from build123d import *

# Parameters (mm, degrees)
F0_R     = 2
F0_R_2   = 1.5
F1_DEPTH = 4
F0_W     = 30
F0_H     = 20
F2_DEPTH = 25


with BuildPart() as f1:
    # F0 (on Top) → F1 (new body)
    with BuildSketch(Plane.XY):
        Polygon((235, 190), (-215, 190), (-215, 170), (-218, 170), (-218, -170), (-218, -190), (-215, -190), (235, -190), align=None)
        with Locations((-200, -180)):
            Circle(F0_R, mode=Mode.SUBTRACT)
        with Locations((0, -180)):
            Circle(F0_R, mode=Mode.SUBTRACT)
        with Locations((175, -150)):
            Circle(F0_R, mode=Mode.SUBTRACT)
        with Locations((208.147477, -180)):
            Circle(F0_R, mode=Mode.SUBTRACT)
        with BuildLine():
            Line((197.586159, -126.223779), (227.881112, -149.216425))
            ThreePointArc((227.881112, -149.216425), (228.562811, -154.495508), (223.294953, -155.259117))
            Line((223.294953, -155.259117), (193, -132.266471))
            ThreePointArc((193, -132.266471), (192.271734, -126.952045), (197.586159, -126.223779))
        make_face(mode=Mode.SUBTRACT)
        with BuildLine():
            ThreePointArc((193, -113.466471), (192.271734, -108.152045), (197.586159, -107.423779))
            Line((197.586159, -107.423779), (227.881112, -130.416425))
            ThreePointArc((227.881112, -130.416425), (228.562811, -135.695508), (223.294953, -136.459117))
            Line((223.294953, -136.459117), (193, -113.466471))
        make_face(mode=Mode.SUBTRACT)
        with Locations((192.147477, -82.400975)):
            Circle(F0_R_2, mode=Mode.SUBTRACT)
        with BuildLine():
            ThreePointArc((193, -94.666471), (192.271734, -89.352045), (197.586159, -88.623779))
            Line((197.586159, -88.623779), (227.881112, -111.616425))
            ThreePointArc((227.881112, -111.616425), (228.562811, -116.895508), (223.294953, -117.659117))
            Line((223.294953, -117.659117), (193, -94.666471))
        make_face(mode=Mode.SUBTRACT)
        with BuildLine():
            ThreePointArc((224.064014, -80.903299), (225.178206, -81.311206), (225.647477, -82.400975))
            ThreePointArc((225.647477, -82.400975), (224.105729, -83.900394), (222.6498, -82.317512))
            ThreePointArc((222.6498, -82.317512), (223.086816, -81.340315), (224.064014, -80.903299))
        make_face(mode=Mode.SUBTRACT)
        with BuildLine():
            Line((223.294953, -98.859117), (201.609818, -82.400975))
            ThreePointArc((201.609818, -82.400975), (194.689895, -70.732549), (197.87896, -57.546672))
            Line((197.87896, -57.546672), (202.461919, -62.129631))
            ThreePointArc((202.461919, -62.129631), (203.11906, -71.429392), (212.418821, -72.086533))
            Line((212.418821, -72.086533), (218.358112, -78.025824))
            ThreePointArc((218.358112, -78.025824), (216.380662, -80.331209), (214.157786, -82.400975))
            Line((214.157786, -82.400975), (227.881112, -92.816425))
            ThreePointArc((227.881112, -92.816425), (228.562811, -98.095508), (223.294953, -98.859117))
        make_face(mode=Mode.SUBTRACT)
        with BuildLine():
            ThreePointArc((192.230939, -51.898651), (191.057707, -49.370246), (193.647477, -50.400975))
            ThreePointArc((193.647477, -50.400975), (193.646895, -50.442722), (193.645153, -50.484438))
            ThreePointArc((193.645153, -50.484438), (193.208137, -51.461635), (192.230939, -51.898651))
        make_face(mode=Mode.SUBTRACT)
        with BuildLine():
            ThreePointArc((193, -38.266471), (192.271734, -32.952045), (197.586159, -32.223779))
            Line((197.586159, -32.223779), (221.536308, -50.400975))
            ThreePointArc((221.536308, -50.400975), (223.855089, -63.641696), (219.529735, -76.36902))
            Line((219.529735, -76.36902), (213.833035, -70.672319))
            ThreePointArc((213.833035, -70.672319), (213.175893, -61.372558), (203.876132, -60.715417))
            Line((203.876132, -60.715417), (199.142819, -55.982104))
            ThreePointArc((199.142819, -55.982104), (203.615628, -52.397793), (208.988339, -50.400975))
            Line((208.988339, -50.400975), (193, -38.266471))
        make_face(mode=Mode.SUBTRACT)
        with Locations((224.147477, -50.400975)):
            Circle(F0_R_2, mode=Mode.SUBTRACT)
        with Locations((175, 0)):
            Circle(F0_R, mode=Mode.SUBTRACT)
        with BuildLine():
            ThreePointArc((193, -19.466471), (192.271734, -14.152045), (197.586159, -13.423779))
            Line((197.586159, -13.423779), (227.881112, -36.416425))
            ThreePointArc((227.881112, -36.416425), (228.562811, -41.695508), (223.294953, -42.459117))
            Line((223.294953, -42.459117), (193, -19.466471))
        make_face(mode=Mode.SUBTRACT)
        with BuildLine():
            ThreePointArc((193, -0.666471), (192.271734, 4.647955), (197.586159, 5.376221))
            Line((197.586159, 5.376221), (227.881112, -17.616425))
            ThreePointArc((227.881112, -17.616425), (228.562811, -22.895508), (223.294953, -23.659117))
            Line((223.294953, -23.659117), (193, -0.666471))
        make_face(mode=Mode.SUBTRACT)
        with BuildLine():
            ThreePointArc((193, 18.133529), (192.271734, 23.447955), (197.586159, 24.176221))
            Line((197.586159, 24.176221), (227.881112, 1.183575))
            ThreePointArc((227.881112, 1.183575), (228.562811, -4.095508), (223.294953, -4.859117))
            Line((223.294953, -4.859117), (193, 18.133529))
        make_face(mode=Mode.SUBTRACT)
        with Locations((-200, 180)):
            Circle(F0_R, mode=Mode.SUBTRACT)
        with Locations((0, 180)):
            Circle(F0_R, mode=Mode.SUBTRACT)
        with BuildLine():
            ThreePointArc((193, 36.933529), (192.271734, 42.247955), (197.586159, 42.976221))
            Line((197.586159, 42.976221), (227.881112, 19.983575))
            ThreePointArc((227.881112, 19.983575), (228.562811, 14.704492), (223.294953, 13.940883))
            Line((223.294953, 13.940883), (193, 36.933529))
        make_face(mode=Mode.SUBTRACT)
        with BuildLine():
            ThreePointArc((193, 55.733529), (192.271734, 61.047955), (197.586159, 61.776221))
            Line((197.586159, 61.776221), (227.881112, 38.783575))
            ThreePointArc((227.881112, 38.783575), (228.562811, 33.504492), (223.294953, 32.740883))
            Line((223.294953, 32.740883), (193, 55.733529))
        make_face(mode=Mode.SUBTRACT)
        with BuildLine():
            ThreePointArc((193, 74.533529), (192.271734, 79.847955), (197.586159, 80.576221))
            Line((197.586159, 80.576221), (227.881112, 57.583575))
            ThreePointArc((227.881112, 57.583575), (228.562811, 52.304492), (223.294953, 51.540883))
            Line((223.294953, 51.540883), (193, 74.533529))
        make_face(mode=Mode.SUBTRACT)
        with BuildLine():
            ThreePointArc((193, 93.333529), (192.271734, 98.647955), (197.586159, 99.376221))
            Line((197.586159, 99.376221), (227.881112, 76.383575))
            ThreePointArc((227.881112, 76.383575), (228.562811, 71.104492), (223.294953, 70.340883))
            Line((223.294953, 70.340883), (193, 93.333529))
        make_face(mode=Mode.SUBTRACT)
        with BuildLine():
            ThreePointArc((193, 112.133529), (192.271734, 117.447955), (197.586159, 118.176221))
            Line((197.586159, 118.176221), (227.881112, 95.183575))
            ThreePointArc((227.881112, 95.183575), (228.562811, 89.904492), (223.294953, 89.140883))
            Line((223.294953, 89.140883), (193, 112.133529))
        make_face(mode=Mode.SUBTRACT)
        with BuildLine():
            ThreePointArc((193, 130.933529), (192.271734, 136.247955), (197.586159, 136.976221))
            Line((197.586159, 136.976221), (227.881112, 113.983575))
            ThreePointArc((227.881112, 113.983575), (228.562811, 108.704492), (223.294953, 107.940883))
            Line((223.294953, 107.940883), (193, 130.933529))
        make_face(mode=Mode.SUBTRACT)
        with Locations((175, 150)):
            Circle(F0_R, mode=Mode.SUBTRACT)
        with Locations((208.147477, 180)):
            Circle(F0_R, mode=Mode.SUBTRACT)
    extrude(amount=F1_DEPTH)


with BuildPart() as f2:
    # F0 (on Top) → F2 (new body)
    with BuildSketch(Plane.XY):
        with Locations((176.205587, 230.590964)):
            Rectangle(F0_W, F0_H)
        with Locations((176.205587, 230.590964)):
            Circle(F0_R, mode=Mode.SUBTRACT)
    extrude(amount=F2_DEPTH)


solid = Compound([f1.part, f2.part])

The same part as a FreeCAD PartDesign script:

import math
import FreeCAD as App
import Part
import Sketcher
Q = App.Units.Quantity


def add_polygon(sketch, points):
    """Adds a closed chain of lines whose ends are joined by coincident constraints."""
    first, n = sketch.GeometryCount, len(points)
    for a, b in zip(points, points[1:] + points[:1]):
        sketch.addGeometry(Part.LineSegment(App.Vector(*a, 0), App.Vector(*b, 0)), False)
    for i in range(n):
        sketch.addConstraint(Sketcher.Constraint("Coincident", first + i, 2, first + (i + 1) % n, 1))

doc = App.newDocument("Part")
body = doc.addObject("PartDesign::Body", "Body")

# Sketch on XY plane
sketch1 = body.newObject("Sketcher::SketchObject", "Sketch")
sketch1.AttachmentSupport = (doc.getObject("XY_Plane"), [""])
sketch1.MapMode = "FlatFace"
add_polygon(sketch1, [(235, 190), (-215, 190), (-215, 170), (-218, 170), (-218, -190), (235, -190)])  # lines 0-5
sketch1.addGeometry(Part.Circle(App.Vector(-200, -180, 0), App.Vector(0, 0, 1), 2), False)  # 6
sketch1.addGeometry(Part.Circle(App.Vector(0, -180, 0), App.Vector(0, 0, 1), 2), False)  # 7
sketch1.addGeometry(Part.Circle(App.Vector(175, -150, 0), App.Vector(0, 0, 1), 2), False)  # 8
sketch1.addGeometry(Part.Circle(App.Vector(208.147477, -180, 0), App.Vector(0, 0, 1), 2), False)  # 9
sketch1.addGeometry(Part.ArcOfCircle(Part.Circle(App.Vector(195.29308, -129.245125, 0), App.Vector(0, 0, 1), 3.792986), math.radians(52.802973), math.radians(232.80297)), False)  # 10
sketch1.addGeometry(Part.LineSegment(App.Vector(197.586159, -126.223779, 0), App.Vector(227.881112, -149.216425, 0)), False)  # 11
sketch1.addGeometry(Part.ArcOfCircle(Part.Circle(App.Vector(225.541101, -152.202152, 0), App.Vector(0, 0, 1), 3.793444), math.radians(-126.307101), math.radians(51.913044)), False)  # 12
sketch1.addGeometry(Part.LineSegment(App.Vector(223.294953, -155.259117, 0), App.Vector(193, -132.266471, 0)), False)  # 13
sketch1.addGeometry(Part.LineSegment(App.Vector(223.294953, -136.459117, 0), App.Vector(193, -113.466471, 0)), False)  # 14
sketch1.addGeometry(Part.ArcOfCircle(Part.Circle(App.Vector(195.29308, -110.445125, 0), App.Vector(0, 0, 1), 3.792986), math.radians(52.802973), math.radians(232.80297)), False)  # 15
sketch1.addGeometry(Part.LineSegment(App.Vector(197.586159, -107.423779, 0), App.Vector(227.881112, -130.416425, 0)), False)  # 16
sketch1.addGeometry(Part.ArcOfCircle(Part.Circle(App.Vector(225.541101, -133.402152, 0), App.Vector(0, 0, 1), 3.793444), math.radians(-126.307101), math.radians(51.913044)), False)  # 17
sketch1.addGeometry(Part.LineSegment(App.Vector(223.294953, -117.659117, 0), App.Vector(193, -94.666471, 0)), False)  # 18
sketch1.addGeometry(Part.ArcOfCircle(Part.Circle(App.Vector(195.29308, -91.645125, 0), App.Vector(0, 0, 1), 3.792986), math.radians(52.802973), math.radians(232.80297)), False)  # 19
sketch1.addGeometry(Part.LineSegment(App.Vector(197.586159, -88.623779, 0), App.Vector(227.881112, -111.616425, 0)), False)  # 20
sketch1.addGeometry(Part.ArcOfCircle(Part.Circle(App.Vector(225.541101, -114.602152, 0), App.Vector(0, 0, 1), 3.793444), math.radians(-126.307101), math.radians(51.913044)), False)  # 21
sketch1.addGeometry(Part.Circle(App.Vector(192.147477, -82.400975, 0), App.Vector(0, 0, 1), 1.5), False)  # 22
sketch1.addGeometry(Part.ArcOfCircle(Part.Circle(App.Vector(224.147476, -82.400975, 0), App.Vector(0, 0, 1), 1.5), math.radians(93.189664), math.radians(176.810295)), False)  # 23
sketch1.addGeometry(Part.ArcOfCircle(Part.Circle(App.Vector(224.147476, -82.400976, 0), App.Vector(0, 0, 1), 1.500001), math.radians(0.000033), math.radians(93.189673)), False)  # 24
sketch1.addGeometry(Part.ArcOfCircle(Part.Circle(App.Vector(224.147477, -82.400975, 0), App.Vector(0, 0, 1), 1.5), math.radians(176.810315), math.radians(359.999987)), False)  # 25
sketch1.addGeometry(Part.ArcOfCircle(Part.Circle(App.Vector(225.541101, -95.802152, 0), App.Vector(0, 0, 1), 3.793444), math.radians(-126.307101), math.radians(51.913044)), False)  # 26
sketch1.addGeometry(Part.LineSegment(App.Vector(223.294953, -98.859117, 0), App.Vector(201.609818, -82.400975, 0)), False)  # 27
sketch1.addGeometry(Part.ArcOfCircle(Part.Circle(App.Vector(212.494052, -68.059983, 0), App.Vector(0, 0, 1), 18.003627), math.radians(144.270791), math.radians(232.802971)), False)  # 28
sketch1.addGeometry(Part.LineSegment(App.Vector(197.87896, -57.546672, 0), App.Vector(202.461919, -62.129631, 0)), False)  # 29
sketch1.addGeometry(Part.ArcOfCircle(Part.Circle(App.Vector(208.147477, -66.400975, 0), App.Vector(0, 0, 1), 7.111255), math.radians(143.083848), math.radians(306.916152)), False)  # 30
sketch1.addGeometry(Part.LineSegment(App.Vector(212.418821, -72.086533, 0), App.Vector(218.358112, -78.025824, 0)), False)  # 31
sketch1.addGeometry(Part.ArcOfCircle(Part.Circle(App.Vector(196.820607, -61.552746, 0), App.Vector(0, 0, 1), 27.115059), math.radians(-50.253427), math.radians(-37.410762)), False)  # 32
sketch1.addGeometry(Part.LineSegment(App.Vector(214.157786, -82.400975, 0), App.Vector(227.881112, -92.816425, 0)), False)  # 33
sketch1.addGeometry(Part.ArcOfCircle(Part.Circle(App.Vector(192.147477, -50.400975, 0), App.Vector(0, 0, 1), 1.5), math.radians(-86.810336), math.radians(-3.189705)), False)  # 34
sketch1.addGeometry(Part.ArcOfCircle(Part.Circle(App.Vector(192.147477, -50.400975, 0), App.Vector(0, 0, 1), 1.5), math.radians(-0.000011), math.radians(273.189663)), False)  # 35
sketch1.addGeometry(Part.ArcOfCircle(Part.Circle(App.Vector(192.145249, -50.40091, 0), App.Vector(0, 0, 1), 1.502228), math.radians(-3.187454), math.radians(-0.002486)), False)  # 36
sketch1.addGeometry(Part.LineSegment(App.Vector(208.988339, -50.400975, 0), App.Vector(193, -38.266471, 0)), False)  # 37
sketch1.addGeometry(Part.ArcOfCircle(Part.Circle(App.Vector(195.29308, -35.245125, 0), App.Vector(0, 0, 1), 3.792986), math.radians(52.802973), math.radians(232.80297)), False)  # 38
sketch1.addGeometry(Part.LineSegment(App.Vector(197.586159, -32.223779, 0), App.Vector(221.536308, -50.400975, 0)), False)  # 39
sketch1.addGeometry(Part.ArcOfCircle(Part.Circle(App.Vector(196.820573, -61.552716, 0), App.Vector(0, 0, 1), 27.115105), math.radians(-33.121927), math.radians(24.2849)), False)  # 40
sketch1.addGeometry(Part.LineSegment(App.Vector(219.529735, -76.36902, 0), App.Vector(213.833035, -70.672319, 0)), False)  # 41
sketch1.addGeometry(Part.ArcOfCircle(Part.Circle(App.Vector(208.147476, -66.400975, 0), App.Vector(0, 0, 1), 7.111256), math.radians(-36.916143), math.radians(126.916149)), False)  # 42
sketch1.addGeometry(Part.LineSegment(App.Vector(203.876132, -60.715417, 0), App.Vector(199.142819, -55.982104, 0)), False)  # 43
sketch1.addGeometry(Part.ArcOfCircle(Part.Circle(App.Vector(212.494046, -68.059972, 0), App.Vector(0, 0, 1), 18.003615), math.radians(101.228507), math.radians(137.866685)), False)  # 44
sketch1.addGeometry(Part.Circle(App.Vector(224.147477, -50.400975, 0), App.Vector(0, 0, 1), 1.5), False)  # 45
sketch1.addGeometry(Part.LineSegment(App.Vector(223.294953, -42.459117, 0), App.Vector(193, -19.466471, 0)), False)  # 46
sketch1.addGeometry(Part.ArcOfCircle(Part.Circle(App.Vector(195.29308, -16.445125, 0), App.Vector(0, 0, 1), 3.792986), math.radians(52.802973), math.radians(232.80297)), False)  # 47
sketch1.addGeometry(Part.LineSegment(App.Vector(197.586159, -13.423779, 0), App.Vector(227.881112, -36.416425, 0)), False)  # 48
sketch1.addGeometry(Part.ArcOfCircle(Part.Circle(App.Vector(225.541101, -39.402152, 0), App.Vector(0, 0, 1), 3.793444), math.radians(-126.307101), math.radians(51.913044)), False)  # 49
sketch1.addGeometry(Part.LineSegment(App.Vector(223.294953, -23.659117, 0), App.Vector(193, -0.666471, 0)), False)  # 50
sketch1.addGeometry(Part.ArcOfCircle(Part.Circle(App.Vector(195.29308, 2.354875, 0), App.Vector(0, 0, 1), 3.792986), math.radians(52.802973), math.radians(232.80297)), False)  # 51
sketch1.addGeometry(Part.LineSegment(App.Vector(197.586159, 5.376221, 0), App.Vector(227.881112, -17.616425, 0)), False)  # 52
sketch1.addGeometry(Part.ArcOfCircle(Part.Circle(App.Vector(225.541101, -20.602152, 0), App.Vector(0, 0, 1), 3.793444), math.radians(-126.307101), math.radians(51.913044)), False)  # 53
sketch1.addGeometry(Part.Circle(App.Vector(-200, 180, 0), App.Vector(0, 0, 1), 2), False)  # 54
sketch1.addGeometry(Part.Circle(App.Vector(0, 180, 0), App.Vector(0, 0, 1), 2), False)  # 55
sketch1.addGeometry(Part.Circle(App.Vector(175, 0, 0), App.Vector(0, 0, 1), 2), False)  # 56
sketch1.addGeometry(Part.LineSegment(App.Vector(223.294953, -4.859117, 0), App.Vector(193, 18.133529, 0)), False)  # 57
sketch1.addGeometry(Part.ArcOfCircle(Part.Circle(App.Vector(195.29308, 21.154875, 0), App.Vector(0, 0, 1), 3.792986), math.radians(52.802973), math.radians(232.80297)), False)  # 58
sketch1.addGeometry(Part.LineSegment(App.Vector(197.586159, 24.176221, 0), App.Vector(227.881112, 1.183575, 0)), False)  # 59
sketch1.addGeometry(Part.ArcOfCircle(Part.Circle(App.Vector(225.541101, -1.802152, 0), App.Vector(0, 0, 1), 3.793444), math.radians(-126.307101), math.radians(51.913044)), False)  # 60
sketch1.addGeometry(Part.LineSegment(App.Vector(223.294953, 13.940883, 0), App.Vector(193, 36.933529, 0)), False)  # 61
sketch1.addGeometry(Part.ArcOfCircle(Part.Circle(App.Vector(195.29308, 39.954875, 0), App.Vector(0, 0, 1), 3.792986), math.radians(52.802973), math.radians(232.80297)), False)  # 62
sketch1.addGeometry(Part.LineSegment(App.Vector(197.586159, 42.976221, 0), App.Vector(227.881112, 19.983575, 0)), False)  # 63
sketch1.addGeometry(Part.ArcOfCircle(Part.Circle(App.Vector(225.541101, 16.997848, 0), App.Vector(0, 0, 1), 3.793444), math.radians(-126.307101), math.radians(51.913044)), False)  # 64
sketch1.addGeometry(Part.LineSegment(App.Vector(223.294953, 32.740883, 0), App.Vector(193, 55.733529, 0)), False)  # 65
sketch1.addGeometry(Part.ArcOfCircle(Part.Circle(App.Vector(195.29308, 58.754875, 0), App.Vector(0, 0, 1), 3.792986), math.radians(52.802973), math.radians(232.80297)), False)  # 66
sketch1.addGeometry(Part.LineSegment(App.Vector(197.586159, 61.776221, 0), App.Vector(227.881112, 38.783575, 0)), False)  # 67
sketch1.addGeometry(Part.ArcOfCircle(Part.Circle(App.Vector(225.541101, 35.797848, 0), App.Vector(0, 0, 1), 3.793444), math.radians(-126.307101), math.radians(51.913044)), False)  # 68
sketch1.addGeometry(Part.LineSegment(App.Vector(223.294953, 51.540883, 0), App.Vector(193, 74.533529, 0)), False)  # 69
sketch1.addGeometry(Part.ArcOfCircle(Part.Circle(App.Vector(195.29308, 77.554875, 0), App.Vector(0, 0, 1), 3.792986), math.radians(52.802973), math.radians(232.80297)), False)  # 70
sketch1.addGeometry(Part.LineSegment(App.Vector(197.586159, 80.576221, 0), App.Vector(227.881112, 57.583575, 0)), False)  # 71
sketch1.addGeometry(Part.ArcOfCircle(Part.Circle(App.Vector(225.541101, 54.597848, 0), App.Vector(0, 0, 1), 3.793444), math.radians(-126.307101), math.radians(51.913044)), False)  # 72
sketch1.addGeometry(Part.LineSegment(App.Vector(223.294953, 70.340883, 0), App.Vector(193, 93.333529, 0)), False)  # 73
sketch1.addGeometry(Part.ArcOfCircle(Part.Circle(App.Vector(195.29308, 96.354875, 0), App.Vector(0, 0, 1), 3.792986), math.radians(52.802973), math.radians(232.80297)), False)  # 74
sketch1.addGeometry(Part.LineSegment(App.Vector(197.586159, 99.376221, 0), App.Vector(227.881112, 76.383575, 0)), False)  # 75
sketch1.addGeometry(Part.ArcOfCircle(Part.Circle(App.Vector(225.541101, 73.397848, 0), App.Vector(0, 0, 1), 3.793444), math.radians(-126.307101), math.radians(51.913044)), False)  # 76
sketch1.addGeometry(Part.LineSegment(App.Vector(223.294953, 89.140883, 0), App.Vector(193, 112.133529, 0)), False)  # 77
sketch1.addGeometry(Part.ArcOfCircle(Part.Circle(App.Vector(195.29308, 115.154875, 0), App.Vector(0, 0, 1), 3.792986), math.radians(52.802973), math.radians(232.80297)), False)  # 78
sketch1.addGeometry(Part.LineSegment(App.Vector(197.586159, 118.176221, 0), App.Vector(227.881112, 95.183575, 0)), False)  # 79
sketch1.addGeometry(Part.ArcOfCircle(Part.Circle(App.Vector(225.541101, 92.197848, 0), App.Vector(0, 0, 1), 3.793444), math.radians(-126.307101), math.radians(51.913044)), False)  # 80
sketch1.addGeometry(Part.LineSegment(App.Vector(223.294953, 107.940883, 0), App.Vector(193, 130.933529, 0)), False)  # 81
sketch1.addGeometry(Part.ArcOfCircle(Part.Circle(App.Vector(195.29308, 133.954875, 0), App.Vector(0, 0, 1), 3.792986), math.radians(52.802973), math.radians(232.80297)), False)  # 82
sketch1.addGeometry(Part.LineSegment(App.Vector(197.586159, 136.976221, 0), App.Vector(227.881112, 113.983575, 0)), False)  # 83
sketch1.addGeometry(Part.ArcOfCircle(Part.Circle(App.Vector(225.541101, 110.997848, 0), App.Vector(0, 0, 1), 3.793444), math.radians(-126.307101), math.radians(51.913044)), False)  # 84
sketch1.addGeometry(Part.Circle(App.Vector(175, 150, 0), App.Vector(0, 0, 1), 2), False)  # 85
sketch1.addGeometry(Part.Circle(App.Vector(208.147477, 180, 0), App.Vector(0, 0, 1), 2), False)  # 86
sketch1.addConstraint([
    Sketcher.Constraint("Coincident", 10, 1, 11, 1),
    Sketcher.Constraint("Coincident", 11, 2, 12, 2),
    Sketcher.Constraint("Coincident", 12, 1, 13, 1),
    Sketcher.Constraint("Coincident", 13, 2, 10, 2),
    Sketcher.Constraint("Coincident", 14, 2, 15, 2),
    Sketcher.Constraint("Coincident", 15, 1, 16, 1),
    Sketcher.Constraint("Coincident", 16, 2, 17, 2),
    Sketcher.Constraint("Coincident", 17, 1, 14, 1),
    Sketcher.Constraint("Coincident", 18, 2, 19, 2),
    Sketcher.Constraint("Coincident", 19, 1, 20, 1),
    Sketcher.Constraint("Coincident", 20, 2, 21, 2),
    Sketcher.Constraint("Coincident", 21, 1, 18, 1),
    Sketcher.Constraint("Coincident", 23, 1, 24, 2),
    Sketcher.Constraint("Coincident", 24, 1, 25, 2),
    Sketcher.Constraint("Coincident", 25, 1, 23, 2),
    Sketcher.Constraint("Coincident", 26, 1, 27, 1),
    Sketcher.Constraint("Coincident", 27, 2, 28, 2),
    Sketcher.Constraint("Coincident", 28, 1, 29, 1),
    Sketcher.Constraint("Coincident", 29, 2, 30, 1),
    Sketcher.Constraint("Coincident", 30, 2, 31, 1),
    Sketcher.Constraint("Coincident", 31, 2, 32, 2),
    Sketcher.Constraint("Coincident", 32, 1, 33, 1),
    Sketcher.Constraint("Coincident", 33, 2, 26, 2),
    Sketcher.Constraint("Coincident", 34, 1, 35, 2),
    Sketcher.Constraint("Coincident", 35, 1, 36, 2),
    Sketcher.Constraint("Coincident", 36, 1, 34, 2),
    Sketcher.Constraint("Coincident", 37, 2, 38, 2),
    Sketcher.Constraint("Coincident", 38, 1, 39, 1),
    Sketcher.Constraint("Coincident", 39, 2, 40, 2),
    Sketcher.Constraint("Coincident", 40, 1, 41, 1),
    Sketcher.Constraint("Coincident", 41, 2, 42, 1),
    Sketcher.Constraint("Coincident", 42, 2, 43, 1),
    Sketcher.Constraint("Coincident", 43, 2, 44, 2),
    Sketcher.Constraint("Coincident", 44, 1, 37, 1),
    Sketcher.Constraint("Coincident", 46, 2, 47, 2),
    Sketcher.Constraint("Coincident", 47, 1, 48, 1),
    Sketcher.Constraint("Coincident", 48, 2, 49, 2),
    Sketcher.Constraint("Coincident", 49, 1, 46, 1),
    Sketcher.Constraint("Coincident", 50, 2, 51, 2),
    Sketcher.Constraint("Coincident", 51, 1, 52, 1),
    Sketcher.Constraint("Coincident", 52, 2, 53, 2),
    Sketcher.Constraint("Coincident", 53, 1, 50, 1),
    Sketcher.Constraint("Coincident", 57, 2, 58, 2),
    Sketcher.Constraint("Coincident", 58, 1, 59, 1),
    Sketcher.Constraint("Coincident", 59, 2, 60, 2),
    Sketcher.Constraint("Coincident", 60, 1, 57, 1),
    Sketcher.Constraint("Coincident", 61, 2, 62, 2),
    Sketcher.Constraint("Coincident", 62, 1, 63, 1),
    Sketcher.Constraint("Coincident", 63, 2, 64, 2),
    Sketcher.Constraint("Coincident", 64, 1, 61, 1),
    Sketcher.Constraint("Coincident", 65, 2, 66, 2),
    Sketcher.Constraint("Coincident", 66, 1, 67, 1),
    Sketcher.Constraint("Coincident", 67, 2, 68, 2),
    Sketcher.Constraint("Coincident", 68, 1, 65, 1),
    Sketcher.Constraint("Coincident", 69, 2, 70, 2),
    Sketcher.Constraint("Coincident", 70, 1, 71, 1),
    Sketcher.Constraint("Coincident", 71, 2, 72, 2),
    Sketcher.Constraint("Coincident", 72, 1, 69, 1),
    Sketcher.Constraint("Coincident", 73, 2, 74, 2),
    Sketcher.Constraint("Coincident", 74, 1, 75, 1),
    Sketcher.Constraint("Coincident", 75, 2, 76, 2),
    Sketcher.Constraint("Coincident", 76, 1, 73, 1),
    Sketcher.Constraint("Coincident", 77, 2, 78, 2),
    Sketcher.Constraint("Coincident", 78, 1, 79, 1),
    Sketcher.Constraint("Coincident", 79, 2, 80, 2),
    Sketcher.Constraint("Coincident", 80, 1, 77, 1),
    Sketcher.Constraint("Coincident", 81, 2, 82, 2),
    Sketcher.Constraint("Coincident", 82, 1, 83, 1),
    Sketcher.Constraint("Coincident", 83, 2, 84, 2),
    Sketcher.Constraint("Coincident", 84, 1, 81, 1),
    Sketcher.Constraint("Horizontal", 0),
    Sketcher.Constraint("Vertical", 1),
    Sketcher.Constraint("Horizontal", 2),
    Sketcher.Constraint("Vertical", 3),
    Sketcher.Constraint("Horizontal", 4),
    Sketcher.Constraint("Vertical", 5),
    Sketcher.Constraint("Coincident", 24, 3, 23, 3),
    Sketcher.Constraint("Coincident", 35, 3, 34, 3),
    Sketcher.Constraint("Coincident", 42, 3, 30, 3),
    Sketcher.Constraint("PointOnObject", 7, 3, -2),
    Sketcher.Constraint("PointOnObject", 55, 3, -2),
    Sketcher.Constraint("PointOnObject", 56, 3, -1),
    Sketcher.Constraint("Diameter", 6, Q("4 mm")),
    Sketcher.Constraint("Diameter", 7, Q("4 mm")),
    Sketcher.Constraint("Diameter", 8, Q("4 mm")),
    Sketcher.Constraint("Diameter", 9, Q("4 mm")),
    Sketcher.Constraint("Diameter", 22, Q("3 mm")),
    Sketcher.Constraint("Diameter", 45, Q("3 mm")),
    Sketcher.Constraint("Diameter", 54, Q("4 mm")),
    Sketcher.Constraint("Diameter", 55, Q("4 mm")),
    Sketcher.Constraint("Diameter", 56, Q("4 mm")),
    Sketcher.Constraint("Diameter", 85, Q("4 mm")),
    Sketcher.Constraint("Diameter", 86, Q("4 mm")),
    Sketcher.Constraint("Radius", 23, Q("1.5 mm")),
    Sketcher.Constraint("Radius", 25, Q("1.5 mm")),
    Sketcher.Constraint("Radius", 34, Q("1.5 mm")),
    Sketcher.Constraint("DistanceX", 0, 2, 0, 1, Q("450 mm")),
    Sketcher.Constraint("DistanceX", 2, 2, 2, 1, Q("3 mm")),
    Sketcher.Constraint("DistanceY", 1, 2, 1, 1, Q("20 mm")),
    Sketcher.Constraint("DistanceY", 3, 2, 3, 1, Q("360 mm")),
    Sketcher.Constraint("DistanceX", 6, 3, -1, 1, Q("200 mm")),
    Sketcher.Constraint("DistanceY", 6, 3, -1, 1, Q("180 mm")),
    Sketcher.Constraint("DistanceY", 7, 3, -1, 1, Q("180 mm")),
    Sketcher.Constraint("DistanceX", -1, 1, 8, 3, Q("175 mm")),
    Sketcher.Constraint("DistanceY", 8, 3, -1, 1, Q("150 mm")),
    Sketcher.Constraint("DistanceY", 9, 3, -1, 1, Q("180 mm")),
    Sketcher.Constraint("DistanceX", 54, 3, -1, 1, Q("200 mm")),
    Sketcher.Constraint("DistanceY", -1, 1, 54, 3, Q("180 mm")),
    Sketcher.Constraint("DistanceY", -1, 1, 55, 3, Q("180 mm")),
    Sketcher.Constraint("DistanceX", -1, 1, 56, 3, Q("175 mm")),
    Sketcher.Constraint("DistanceX", -1, 1, 85, 3, Q("175 mm")),
    Sketcher.Constraint("DistanceY", -1, 1, 85, 3, Q("150 mm")),
    Sketcher.Constraint("DistanceY", -1, 1, 86, 3, Q("180 mm")),
    Sketcher.Constraint("DistanceX", 0, 2, -1, 1, Q("215 mm")),
    Sketcher.Constraint("DistanceY", -1, 1, 0, 2, Q("190 mm")),
    Sketcher.Constraint("DistanceX", -1, 1, 13, 2, Q("193 mm")),
    Sketcher.Constraint("DistanceX", -1, 1, 14, 2, Q("193 mm")),
    Sketcher.Constraint("DistanceX", -1, 1, 18, 2, Q("193 mm")),
    Sketcher.Constraint("DistanceX", -1, 1, 37, 2, Q("193 mm")),
    Sketcher.Constraint("DistanceX", -1, 1, 46, 2, Q("193 mm")),
    Sketcher.Constraint("DistanceX", -1, 1, 50, 2, Q("193 mm")),
    Sketcher.Constraint("DistanceX", -1, 1, 57, 2, Q("193 mm")),
    Sketcher.Constraint("DistanceX", -1, 1, 61, 2, Q("193 mm")),
    Sketcher.Constraint("DistanceX", -1, 1, 65, 2, Q("193 mm")),
    Sketcher.Constraint("DistanceX", -1, 1, 69, 2, Q("193 mm")),
    Sketcher.Constraint("DistanceX", -1, 1, 73, 2, Q("193 mm")),
    Sketcher.Constraint("DistanceX", -1, 1, 77, 2, Q("193 mm")),
    Sketcher.Constraint("DistanceX", -1, 1, 81, 2, Q("193 mm")),
    Sketcher.Constraint("Radius", 32, Q("27.115059 mm")),
    Sketcher.Constraint("Radius", 10, Q("3.792986 mm")),
    Sketcher.Constraint("Radius", 12, Q("3.793444 mm")),
    Sketcher.Constraint("Radius", 15, Q("3.792986 mm")),
    Sketcher.Constraint("Radius", 17, Q("3.793444 mm")),
    Sketcher.Constraint("Radius", 19, Q("3.792986 mm")),
    Sketcher.Constraint("Radius", 21, Q("3.793444 mm")),
    Sketcher.Constraint("Radius", 26, Q("3.793444 mm")),
    Sketcher.Constraint("Radius", 28, Q("18.003627 mm")),
    Sketcher.Constraint("Radius", 30, Q("7.111255 mm")),
    Sketcher.Constraint("Radius", 36, Q("1.502228 mm")),
    Sketcher.Constraint("Radius", 38, Q("3.792986 mm")),
    Sketcher.Constraint("Radius", 40, Q("27.115105 mm")),
    Sketcher.Constraint("Radius", 42, Q("7.111256 mm")),
    Sketcher.Constraint("Radius", 44, Q("18.003615 mm")),
    Sketcher.Constraint("Radius", 47, Q("3.792986 mm")),
    Sketcher.Constraint("Radius", 49, Q("3.793444 mm")),
    Sketcher.Constraint("Radius", 51, Q("3.792986 mm")),
    Sketcher.Constraint("Radius", 53, Q("3.793444 mm")),
    Sketcher.Constraint("Radius", 58, Q("3.792986 mm")),
    Sketcher.Constraint("Radius", 60, Q("3.793444 mm")),
    Sketcher.Constraint("Radius", 62, Q("3.792986 mm")),
    Sketcher.Constraint("Radius", 64, Q("3.793444 mm")),
    Sketcher.Constraint("Radius", 66, Q("3.792986 mm")),
    Sketcher.Constraint("Radius", 68, Q("3.793444 mm")),
    Sketcher.Constraint("Radius", 70, Q("3.792986 mm")),
    Sketcher.Constraint("Radius", 72, Q("3.793444 mm")),
    Sketcher.Constraint("Radius", 74, Q("3.792986 mm")),
    Sketcher.Constraint("Radius", 76, Q("3.793444 mm")),
    Sketcher.Constraint("Radius", 78, Q("3.792986 mm")),
    Sketcher.Constraint("Radius", 80, Q("3.793444 mm")),
    Sketcher.Constraint("Radius", 82, Q("3.792986 mm")),
    Sketcher.Constraint("Radius", 84, Q("3.793444 mm")),
    Sketcher.Constraint("Distance", 37, Q("20.071701 mm")),
    Sketcher.Constraint("DistanceX", -1, 1, 12, 3, Q("225.541101 mm")),
    Sketcher.Constraint("DistanceX", -1, 1, 17, 3, Q("225.541101 mm")),
    Sketcher.Constraint("DistanceX", -1, 1, 21, 3, Q("225.541101 mm")),
    Sketcher.Constraint("DistanceX", -1, 1, 26, 3, Q("225.541101 mm")),
    Sketcher.Constraint("DistanceX", -1, 1, 49, 3, Q("225.541101 mm")),
    Sketcher.Constraint("DistanceX", -1, 1, 53, 3, Q("225.541101 mm")),
    Sketcher.Constraint("DistanceX", -1, 1, 60, 3, Q("225.541101 mm")),
    Sketcher.Constraint("DistanceX", -1, 1, 64, 3, Q("225.541101 mm")),
    Sketcher.Constraint("DistanceX", -1, 1, 68, 3, Q("225.541101 mm")),
    Sketcher.Constraint("DistanceX", -1, 1, 72, 3, Q("225.541101 mm")),
    Sketcher.Constraint("DistanceX", -1, 1, 76, 3, Q("225.541101 mm")),
    Sketcher.Constraint("DistanceX", -1, 1, 80, 3, Q("225.541101 mm")),
    Sketcher.Constraint("DistanceX", -1, 1, 84, 3, Q("225.541101 mm")),
    Sketcher.Constraint("DistanceY", 23, 1, -1, 1, Q("80.903299 mm")),
    Sketcher.Constraint("DistanceX", -1, 1, 25, 1, Q("222.6498 mm")),
    Sketcher.Constraint("Distance", 11, Q("38.03217 mm")),
    Sketcher.Constraint("Distance", 13, Q("38.03217 mm")),
    Sketcher.Constraint("Distance", 14, Q("38.03217 mm")),
    Sketcher.Constraint("Distance", 16, Q("38.03217 mm")),
    Sketcher.Constraint("Distance", 18, Q("38.03217 mm")),
    Sketcher.Constraint("Distance", 20, Q("38.03217 mm")),
    Sketcher.Constraint("Distance", 33, Q("17.228212 mm")),
    Sketcher.Constraint("Distance", 41, Q("8.056351 mm")),
    Sketcher.Constraint("Distance", 46, Q("38.03217 mm")),
    Sketcher.Constraint("Distance", 48, Q("38.03217 mm")),
    Sketcher.Constraint("Distance", 50, Q("38.03217 mm")),
    Sketcher.Constraint("Distance", 52, Q("38.03217 mm")),
    Sketcher.Constraint("Distance", 57, Q("38.03217 mm")),
    Sketcher.Constraint("Distance", 59, Q("38.03217 mm")),
    Sketcher.Constraint("Distance", 61, Q("38.03217 mm")),
    Sketcher.Constraint("Distance", 63, Q("38.03217 mm")),
    Sketcher.Constraint("Distance", 65, Q("38.03217 mm")),
    Sketcher.Constraint("Distance", 67, Q("38.03217 mm")),
    Sketcher.Constraint("Distance", 69, Q("38.03217 mm")),
    Sketcher.Constraint("Distance", 71, Q("38.03217 mm")),
    Sketcher.Constraint("Distance", 73, Q("38.03217 mm")),
    Sketcher.Constraint("Distance", 75, Q("38.03217 mm")),
    Sketcher.Constraint("Distance", 77, Q("38.03217 mm")),
    Sketcher.Constraint("Distance", 79, Q("38.03217 mm")),
    Sketcher.Constraint("Distance", 81, Q("38.03217 mm")),
    Sketcher.Constraint("Distance", 83, Q("38.03217 mm")),
    Sketcher.Constraint("DistanceX", -1, 1, 10, 3, Q("195.29308 mm")),
    Sketcher.Constraint("DistanceY", 12, 3, -1, 1, Q("152.202152 mm")),
    Sketcher.Constraint("DistanceX", -1, 1, 15, 3, Q("195.29308 mm")),
    Sketcher.Constraint("DistanceY", 17, 3, -1, 1, Q("133.402152 mm")),
    Sketcher.Constraint("DistanceX", -1, 1, 19, 3, Q("195.29308 mm")),
    Sketcher.Constraint("DistanceY", 21, 3, -1, 1, Q("114.602152 mm")),
    Sketcher.Constraint("DistanceY", 26, 3, -1, 1, Q("95.802152 mm")),
    Sketcher.Constraint("DistanceX", -1, 1, 28, 3, Q("212.494052 mm")),
    Sketcher.Constraint("DistanceX", -1, 1, 36, 3, Q("192.145249 mm")),
    Sketcher.Constraint("DistanceY", 36, 3, -1, 1, Q("50.40091 mm")),
    Sketcher.Constraint("DistanceX", -1, 1, 38, 3, Q("195.29308 mm")),
    Sketcher.Constraint("DistanceX", -1, 1, 47, 3, Q("195.29308 mm")),
    Sketcher.Constraint("DistanceY", 49, 3, -1, 1, Q("39.402152 mm")),
    Sketcher.Constraint("DistanceX", -1, 1, 51, 3, Q("195.29308 mm")),
    Sketcher.Constraint("DistanceY", 53, 3, -1, 1, Q("20.602152 mm")),
    Sketcher.Constraint("DistanceX", -1, 1, 58, 3, Q("195.29308 mm")),
    Sketcher.Constraint("DistanceY", 60, 3, -1, 1, Q("1.802152 mm")),
    Sketcher.Constraint("DistanceX", -1, 1, 62, 3, Q("195.29308 mm")),
    Sketcher.Constraint("DistanceY", -1, 1, 64, 3, Q("16.997848 mm")),
    Sketcher.Constraint("DistanceX", -1, 1, 66, 3, Q("195.29308 mm")),
    Sketcher.Constraint("DistanceY", -1, 1, 68, 3, Q("35.797848 mm")),
    Sketcher.Constraint("DistanceX", -1, 1, 70, 3, Q("195.29308 mm")),
    Sketcher.Constraint("DistanceY", -1, 1, 72, 3, Q("54.597848 mm")),
    Sketcher.Constraint("DistanceX", -1, 1, 74, 3, Q("195.29308 mm")),
    Sketcher.Constraint("DistanceY", -1, 1, 76, 3, Q("73.397848 mm")),
    Sketcher.Constraint("DistanceX", -1, 1, 78, 3, Q("195.29308 mm")),
    Sketcher.Constraint("DistanceY", -1, 1, 80, 3, Q("92.197848 mm")),
    Sketcher.Constraint("DistanceX", -1, 1, 82, 3, Q("195.29308 mm")),
    Sketcher.Constraint("DistanceY", -1, 1, 84, 3, Q("110.997848 mm")),
    Sketcher.Constraint("DistanceX", -1, 1, 10, 1, Q("197.586159 mm")),
    Sketcher.Constraint("DistanceY", 10, 1, -1, 1, Q("126.223779 mm")),
    Sketcher.Constraint("DistanceY", 14, 2, -1, 1, Q("113.466471 mm")),
    Sketcher.Constraint("DistanceX", -1, 1, 15, 1, Q("197.586159 mm")),
    Sketcher.Constraint("DistanceY", 18, 2, -1, 1, Q("94.666471 mm")),
    Sketcher.Constraint("DistanceX", -1, 1, 19, 1, Q("197.586159 mm")),
    Sketcher.Constraint("DistanceX", -1, 1, 28, 1, Q("197.87896 mm")),
    Sketcher.Constraint("DistanceY", 28, 1, -1, 1, Q("57.546672 mm")),
    Sketcher.Constraint("DistanceX", -1, 1, 29, 2, Q("202.461919 mm")),
    Sketcher.Constraint("DistanceY", 29, 2, -1, 1, Q("62.129631 mm")),
    Sketcher.Constraint("DistanceX", -1, 1, 30, 2, Q("212.418821 mm")),
    Sketcher.Constraint("DistanceX", -1, 1, 31, 2, Q("218.358112 mm")),
    Sketcher.Constraint("DistanceX", -1, 1, 33, 2, Q("227.881112 mm")),
    Sketcher.Constraint("DistanceX", -1, 1, 34, 1, Q("192.230939 mm")),
    Sketcher.Constraint("DistanceY", 36, 1, -1, 1, Q("50.484438 mm")),
    Sketcher.Constraint("DistanceY", 37, 2, -1, 1, Q("38.266471 mm")),
    Sketcher.Constraint("DistanceX", -1, 1, 38, 1, Q("197.586159 mm")),
    Sketcher.Constraint("DistanceX", -1, 1, 39, 2, Q("221.536308 mm")),
    Sketcher.Constraint("DistanceY", 40, 1, -1, 1, Q("76.36902 mm")),
    Sketcher.Constraint("DistanceY", 41, 2, -1, 1, Q("70.672319 mm")),
    Sketcher.Constraint("DistanceX", -1, 1, 43, 2, Q("199.142819 mm")),
    Sketcher.Constraint("DistanceX", -1, 1, 44, 1, Q("208.988339 mm")),
    Sketcher.Constraint("DistanceY", 46, 2, -1, 1, Q("19.466471 mm")),
    Sketcher.Constraint("DistanceX", -1, 1, 47, 1, Q("197.586159 mm")),
    Sketcher.Constraint("DistanceY", 50, 2, -1, 1, Q("0.666471 mm")),
    Sketcher.Constraint("DistanceX", -1, 1, 51, 1, Q("197.586159 mm")),
    Sketcher.Constraint("DistanceY", -1, 1, 57, 2, Q("18.133529 mm")),
    Sketcher.Constraint("DistanceX", -1, 1, 58, 1, Q("197.586159 mm")),
    Sketcher.Constraint("DistanceY", -1, 1, 61, 2, Q("36.933529 mm")),
    Sketcher.Constraint("DistanceX", -1, 1, 62, 1, Q("197.586159 mm")),
    Sketcher.Constraint("DistanceY", -1, 1, 65, 2, Q("55.733529 mm")),
    Sketcher.Constraint("DistanceX", -1, 1, 66, 1, Q("197.586159 mm")),
    Sketcher.Constraint("DistanceY", -1, 1, 69, 2, Q("74.533529 mm")),
    Sketcher.Constraint("DistanceX", -1, 1, 70, 1, Q("197.586159 mm")),
    Sketcher.Constraint("DistanceY", -1, 1, 73, 2, Q("93.333529 mm")),
    Sketcher.Constraint("DistanceX", -1, 1, 74, 1, Q("197.586159 mm")),
    Sketcher.Constraint("DistanceY", -1, 1, 77, 2, Q("112.133529 mm")),
    Sketcher.Constraint("DistanceX", -1, 1, 78, 1, Q("197.586159 mm")),
    Sketcher.Constraint("DistanceY", -1, 1, 81, 2, Q("130.933529 mm")),
    Sketcher.Constraint("DistanceX", -1, 1, 82, 1, Q("197.586159 mm")),
    Sketcher.Constraint("Distance", 27, Q("27.223437 mm")),
    Sketcher.Constraint("Distance", 31, Q("8.399426 mm")),
    Sketcher.Constraint("Distance", 39, Q("30.066927 mm")),
    Sketcher.Constraint("Distance", 43, Q("6.693915 mm")),
    Sketcher.Constraint("DistanceX", -1, 1, 9, 3, Q("208.147477 mm")),
    Sketcher.Constraint("DistanceX", -1, 1, 22, 3, Q("192.147477 mm")),
    Sketcher.Constraint("DistanceY", 22, 3, -1, 1, Q("82.400975 mm")),
    Sketcher.Constraint("DistanceX", -1, 1, 23, 3, Q("224.147476 mm")),
    Sketcher.Constraint("DistanceY", 23, 3, -1, 1, Q("82.400975 mm")),
    Sketcher.Constraint("DistanceX", -1, 1, 30, 3, Q("208.147477 mm")),
    Sketcher.Constraint("DistanceX", -1, 1, 32, 3, Q("196.820607 mm")),
    Sketcher.Constraint("DistanceX", -1, 1, 44, 3, Q("212.494046 mm")),
    Sketcher.Constraint("DistanceX", -1, 1, 45, 3, Q("224.147477 mm")),
    Sketcher.Constraint("DistanceY", 45, 3, -1, 1, Q("50.400975 mm")),
    Sketcher.Constraint("DistanceX", -1, 1, 86, 3, Q("208.147477 mm")),
    Sketcher.Constraint("DistanceY", 24, 1, -1, 1, Q("82.400975 mm")),
    Sketcher.Constraint("DistanceX", -1, 1, 26, 1, Q("223.294953 mm")),
    Sketcher.Constraint("DistanceY", 35, 1, -1, 1, Q("50.400975 mm")),
])
pad1 = body.newObject("PartDesign::Pad", "Pad")
pad1.Profile = sketch1
pad1.Length = 4
body2 = doc.addObject("PartDesign::Body", "Body001")

# Sketch on XY plane
sketch2 = body2.newObject("Sketcher::SketchObject", "Sketch001")
sketch2.AttachmentSupport = (doc.getObject("XY_Plane001"), [""])
sketch2.MapMode = "FlatFace"
add_polygon(sketch2, [(161.205587, 240.590964), (161.205587, 220.590964), (191.205587, 220.590964), (191.205587, 240.590964)])  # lines 0-3
sketch2.addGeometry(Part.Circle(App.Vector(176.205587, 230.590964, 0), App.Vector(0, 0, 1), 2), False)  # 4
sketch2.addConstraint([
    Sketcher.Constraint("Vertical", 0),
    Sketcher.Constraint("Horizontal", 1),
    Sketcher.Constraint("Vertical", 2),
    Sketcher.Constraint("Horizontal", 3),
    Sketcher.Constraint("Diameter", 4, Q("4 mm")),
    Sketcher.Constraint("DistanceX", 1, 1, 1, 2, Q("30 mm")),
    Sketcher.Constraint("DistanceY", 0, 2, 0, 1, Q("20 mm")),
    Sketcher.Constraint("DistanceX", 0, 2, 4, 3, Q("15 mm")),
    Sketcher.Constraint("DistanceY", 0, 2, 4, 3, Q("10 mm")),
    Sketcher.Constraint("DistanceX", -1, 1, 4, 3, Q("176.205587 mm")),
    Sketcher.Constraint("DistanceY", -1, 1, 4, 3, Q("230.590964 mm")),
])
pad2 = body2.newObject("PartDesign::Pad", "Pad001")
pad2.Profile = sketch2
pad2.Length = 25

doc.recompute()
